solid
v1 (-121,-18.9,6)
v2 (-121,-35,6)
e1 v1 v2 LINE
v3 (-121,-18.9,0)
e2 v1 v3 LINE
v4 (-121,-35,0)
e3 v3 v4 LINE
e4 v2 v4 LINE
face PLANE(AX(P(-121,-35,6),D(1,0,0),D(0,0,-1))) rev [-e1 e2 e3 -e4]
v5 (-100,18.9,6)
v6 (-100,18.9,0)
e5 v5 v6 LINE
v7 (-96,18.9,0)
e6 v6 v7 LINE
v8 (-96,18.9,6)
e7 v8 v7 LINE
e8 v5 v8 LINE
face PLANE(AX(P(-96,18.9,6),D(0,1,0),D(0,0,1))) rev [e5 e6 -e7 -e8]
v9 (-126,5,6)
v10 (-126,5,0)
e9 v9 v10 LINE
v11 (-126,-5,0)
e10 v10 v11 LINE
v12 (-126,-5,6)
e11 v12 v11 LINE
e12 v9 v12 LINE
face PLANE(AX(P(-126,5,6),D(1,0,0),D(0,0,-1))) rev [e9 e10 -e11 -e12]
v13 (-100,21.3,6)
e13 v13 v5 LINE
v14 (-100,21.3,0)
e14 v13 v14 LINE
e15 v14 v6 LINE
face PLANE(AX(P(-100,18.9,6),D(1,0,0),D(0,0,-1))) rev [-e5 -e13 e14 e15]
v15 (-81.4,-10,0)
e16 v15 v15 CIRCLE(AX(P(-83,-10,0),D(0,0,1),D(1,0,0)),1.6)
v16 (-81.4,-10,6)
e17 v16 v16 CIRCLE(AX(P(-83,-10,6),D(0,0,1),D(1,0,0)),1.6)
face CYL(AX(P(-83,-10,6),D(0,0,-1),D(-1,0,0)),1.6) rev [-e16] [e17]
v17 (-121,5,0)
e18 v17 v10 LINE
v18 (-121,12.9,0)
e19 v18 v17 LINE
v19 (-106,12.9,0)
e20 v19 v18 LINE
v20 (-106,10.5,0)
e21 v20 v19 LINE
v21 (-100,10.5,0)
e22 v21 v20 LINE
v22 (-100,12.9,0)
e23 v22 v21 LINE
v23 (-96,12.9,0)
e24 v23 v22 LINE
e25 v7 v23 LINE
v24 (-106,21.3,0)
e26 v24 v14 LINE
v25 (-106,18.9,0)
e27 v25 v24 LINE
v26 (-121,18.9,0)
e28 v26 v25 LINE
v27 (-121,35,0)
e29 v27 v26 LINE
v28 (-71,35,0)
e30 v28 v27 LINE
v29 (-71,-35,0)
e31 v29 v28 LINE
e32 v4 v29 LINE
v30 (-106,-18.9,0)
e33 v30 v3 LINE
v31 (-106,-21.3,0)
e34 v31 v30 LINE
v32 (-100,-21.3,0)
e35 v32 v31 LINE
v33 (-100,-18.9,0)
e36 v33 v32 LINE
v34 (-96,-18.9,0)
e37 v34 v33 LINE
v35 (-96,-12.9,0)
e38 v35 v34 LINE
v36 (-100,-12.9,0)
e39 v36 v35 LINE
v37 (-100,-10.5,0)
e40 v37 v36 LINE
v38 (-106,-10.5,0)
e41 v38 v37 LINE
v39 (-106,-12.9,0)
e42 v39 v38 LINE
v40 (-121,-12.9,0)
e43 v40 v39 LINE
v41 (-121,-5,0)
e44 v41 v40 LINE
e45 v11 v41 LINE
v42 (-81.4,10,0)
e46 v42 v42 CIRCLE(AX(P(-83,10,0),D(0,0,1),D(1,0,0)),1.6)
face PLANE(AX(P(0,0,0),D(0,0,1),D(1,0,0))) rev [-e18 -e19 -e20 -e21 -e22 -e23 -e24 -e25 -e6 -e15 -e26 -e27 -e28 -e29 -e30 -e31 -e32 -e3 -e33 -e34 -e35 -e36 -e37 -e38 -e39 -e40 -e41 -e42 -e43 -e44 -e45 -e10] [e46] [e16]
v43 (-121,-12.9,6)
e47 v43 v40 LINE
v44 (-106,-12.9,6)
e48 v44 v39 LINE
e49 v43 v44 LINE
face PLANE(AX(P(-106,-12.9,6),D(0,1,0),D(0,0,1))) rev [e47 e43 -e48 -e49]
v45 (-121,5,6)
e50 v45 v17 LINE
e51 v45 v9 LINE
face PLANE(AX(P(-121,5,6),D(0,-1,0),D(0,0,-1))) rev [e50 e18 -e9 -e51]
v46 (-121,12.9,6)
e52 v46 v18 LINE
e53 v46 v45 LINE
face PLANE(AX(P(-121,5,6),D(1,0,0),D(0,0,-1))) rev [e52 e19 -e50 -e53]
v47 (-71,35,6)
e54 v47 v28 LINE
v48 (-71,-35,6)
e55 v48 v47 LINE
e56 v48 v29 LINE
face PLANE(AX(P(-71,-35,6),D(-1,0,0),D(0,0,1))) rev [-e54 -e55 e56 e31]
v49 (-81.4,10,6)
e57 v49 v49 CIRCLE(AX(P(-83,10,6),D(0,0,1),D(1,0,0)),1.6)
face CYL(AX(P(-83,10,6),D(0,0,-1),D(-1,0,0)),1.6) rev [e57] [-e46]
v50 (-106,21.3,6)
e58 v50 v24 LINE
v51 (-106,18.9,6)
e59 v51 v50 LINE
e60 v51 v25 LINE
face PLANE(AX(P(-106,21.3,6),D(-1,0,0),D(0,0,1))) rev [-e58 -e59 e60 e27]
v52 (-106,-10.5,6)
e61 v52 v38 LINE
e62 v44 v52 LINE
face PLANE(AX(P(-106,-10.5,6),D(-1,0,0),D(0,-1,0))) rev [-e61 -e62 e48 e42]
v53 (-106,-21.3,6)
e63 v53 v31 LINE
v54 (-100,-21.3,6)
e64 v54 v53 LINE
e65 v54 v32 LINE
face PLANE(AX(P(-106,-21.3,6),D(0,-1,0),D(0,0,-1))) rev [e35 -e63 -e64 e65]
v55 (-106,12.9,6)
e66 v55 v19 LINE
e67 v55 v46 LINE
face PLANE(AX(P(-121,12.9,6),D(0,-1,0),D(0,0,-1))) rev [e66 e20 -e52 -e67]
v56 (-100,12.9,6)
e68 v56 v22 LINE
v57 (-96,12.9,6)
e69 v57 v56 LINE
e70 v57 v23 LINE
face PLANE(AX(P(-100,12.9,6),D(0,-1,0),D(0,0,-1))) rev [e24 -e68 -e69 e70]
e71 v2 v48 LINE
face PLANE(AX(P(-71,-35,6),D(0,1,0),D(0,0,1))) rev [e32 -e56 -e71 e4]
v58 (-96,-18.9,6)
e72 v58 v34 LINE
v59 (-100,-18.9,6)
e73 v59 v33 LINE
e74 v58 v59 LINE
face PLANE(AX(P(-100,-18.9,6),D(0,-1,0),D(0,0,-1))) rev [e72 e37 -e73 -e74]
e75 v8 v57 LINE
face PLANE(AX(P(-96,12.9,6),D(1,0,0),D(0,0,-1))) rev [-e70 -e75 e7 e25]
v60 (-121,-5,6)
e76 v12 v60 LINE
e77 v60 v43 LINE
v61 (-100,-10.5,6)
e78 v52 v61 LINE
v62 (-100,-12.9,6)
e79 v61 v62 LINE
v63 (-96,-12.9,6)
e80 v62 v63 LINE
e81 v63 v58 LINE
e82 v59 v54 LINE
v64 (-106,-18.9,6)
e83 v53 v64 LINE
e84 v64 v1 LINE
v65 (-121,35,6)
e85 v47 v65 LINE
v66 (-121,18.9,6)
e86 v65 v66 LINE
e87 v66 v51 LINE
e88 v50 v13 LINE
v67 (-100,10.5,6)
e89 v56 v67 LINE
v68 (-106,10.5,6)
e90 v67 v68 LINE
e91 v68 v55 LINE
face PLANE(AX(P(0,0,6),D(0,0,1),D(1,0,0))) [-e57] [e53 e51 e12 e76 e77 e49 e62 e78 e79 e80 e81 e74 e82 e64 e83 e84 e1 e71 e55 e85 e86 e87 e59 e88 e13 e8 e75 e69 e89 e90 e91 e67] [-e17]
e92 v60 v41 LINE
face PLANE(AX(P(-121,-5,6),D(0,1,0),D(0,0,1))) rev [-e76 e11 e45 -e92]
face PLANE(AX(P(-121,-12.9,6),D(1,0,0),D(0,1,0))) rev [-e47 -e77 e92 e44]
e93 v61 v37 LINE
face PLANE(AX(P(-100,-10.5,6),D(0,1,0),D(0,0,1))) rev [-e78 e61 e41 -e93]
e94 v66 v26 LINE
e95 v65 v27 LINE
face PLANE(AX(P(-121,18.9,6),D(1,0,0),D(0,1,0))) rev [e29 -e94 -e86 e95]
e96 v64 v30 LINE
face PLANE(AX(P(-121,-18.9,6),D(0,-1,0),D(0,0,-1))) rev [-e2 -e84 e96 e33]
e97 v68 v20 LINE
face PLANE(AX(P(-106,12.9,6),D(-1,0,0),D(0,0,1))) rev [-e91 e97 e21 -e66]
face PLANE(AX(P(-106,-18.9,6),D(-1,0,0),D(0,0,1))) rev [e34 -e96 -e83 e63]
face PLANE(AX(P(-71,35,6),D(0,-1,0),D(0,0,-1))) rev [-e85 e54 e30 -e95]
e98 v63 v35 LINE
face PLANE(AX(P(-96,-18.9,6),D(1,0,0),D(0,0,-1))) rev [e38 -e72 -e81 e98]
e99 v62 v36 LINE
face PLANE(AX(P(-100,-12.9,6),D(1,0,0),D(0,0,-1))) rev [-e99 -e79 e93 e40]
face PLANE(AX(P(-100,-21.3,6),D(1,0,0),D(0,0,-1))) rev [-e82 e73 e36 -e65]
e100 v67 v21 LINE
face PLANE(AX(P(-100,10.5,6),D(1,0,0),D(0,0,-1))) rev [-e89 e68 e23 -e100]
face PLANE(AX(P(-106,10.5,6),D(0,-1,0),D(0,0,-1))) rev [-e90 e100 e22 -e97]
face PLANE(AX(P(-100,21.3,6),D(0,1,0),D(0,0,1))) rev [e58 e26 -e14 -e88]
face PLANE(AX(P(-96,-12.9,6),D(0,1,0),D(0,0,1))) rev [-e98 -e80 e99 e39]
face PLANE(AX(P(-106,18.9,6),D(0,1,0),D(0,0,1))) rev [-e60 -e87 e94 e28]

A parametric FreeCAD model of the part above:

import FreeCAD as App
import Part
import Sketcher

V = App.Vector


def add_polygon(sketch, points):
    """Adds a closed chain of lines whose ends are joined by coincident constraints."""
    first, n = sketch.GeometryCount, len(points)
    for a, b in zip(points, points[1:] + points[:1]):
        sketch.addGeometry(Part.LineSegment(App.Vector(*a, 0), App.Vector(*b, 0)), False)
    for i in range(n):
        sketch.addConstraint(Sketcher.Constraint("Coincident", first + i, 2, first + (i + 1) % n, 1))

doc = App.newDocument("Part")
body = doc.addObject("PartDesign::Body", "Body")

# Sketch on XY plane
sketch1 = doc.addObject("Sketcher::SketchObject", "Sketch")
body.addObject(sketch1)
sketch1.AttachmentSupport = (doc.XY_Plane, [""])
sketch1.MapMode = "FlatFace"
add_polygon(sketch1, [(-121, -35), (-71, -35), (-71, 35), (-121, 35), (-121, 18.9), (-106, 18.9), (-106, 21.3), (-100, 21.3), (-100, 18.9), (-96, 18.9), (-96, 12.9), (-100, 12.9), (-100, 10.5), (-106, 10.5), (-106, 12.9), (-121, 12.9), (-121, 5), (-126, 5), (-126, -5), (-121, -5), (-121, -12.9), (-106, -12.9), (-106, -10.5), (-100, -10.5), (-100, -12.9), (-96, -12.9), (-96, -18.9), (-100, -18.9), (-100, -21.3), (-106, -21.3), (-106, -18.9), (-121, -18.9)])  # lines 0-31
sketch1.addGeometry(Part.Circle(V(-83, -10, 0), V(0, 0, 1), 1.6), False)  # 32
sketch1.addGeometry(Part.Circle(V(-83, 10, 0), V(0, 0, 1), 1.6), False)  # 33
sketch1.addConstraint(Sketcher.Constraint("Horizontal", 0))
sketch1.addConstraint(Sketcher.Constraint("Vertical", 1))
sketch1.addConstraint(Sketcher.Constraint("Horizontal", 2))
sketch1.addConstraint(Sketcher.Constraint("Vertical", 3))
sketch1.addConstraint(Sketcher.Constraint("Horizontal", 4))
sketch1.addConstraint(Sketcher.Constraint("Vertical", 5))
sketch1.addConstraint(Sketcher.Constraint("Horizontal", 6))
sketch1.addConstraint(Sketcher.Constraint("Vertical", 7))
sketch1.addConstraint(Sketcher.Constraint("Horizontal", 8))
sketch1.addConstraint(Sketcher.Constraint("Vertical", 9))
sketch1.addConstraint(Sketcher.Constraint("Horizontal", 10))
sketch1.addConstraint(Sketcher.Constraint("Vertical", 11))
sketch1.addConstraint(Sketcher.Constraint("Horizontal", 12))
sketch1.addConstraint(Sketcher.Constraint("Vertical", 13))
sketch1.addConstraint(Sketcher.Constraint("Horizontal", 14))
sketch1.addConstraint(Sketcher.Constraint("Vertical", 15))
sketch1.addConstraint(Sketcher.Constraint("Horizontal", 16))
sketch1.addConstraint(Sketcher.Constraint("Vertical", 17))
sketch1.addConstraint(Sketcher.Constraint("Horizontal", 18))
sketch1.addConstraint(Sketcher.Constraint("Vertical", 19))
sketch1.addConstraint(Sketcher.Constraint("Horizontal", 20))
sketch1.addConstraint(Sketcher.Constraint("Vertical", 21))
sketch1.addConstraint(Sketcher.Constraint("Horizontal", 22))
sketch1.addConstraint(Sketcher.Constraint("Vertical", 23))
sketch1.addConstraint(Sketcher.Constraint("Horizontal", 24))
sketch1.addConstraint(Sketcher.Constraint("Vertical", 25))
sketch1.addConstraint(Sketcher.Constraint("Horizontal", 26))
sketch1.addConstraint(Sketcher.Constraint("Vertical", 27))
sketch1.addConstraint(Sketcher.Constraint("Horizontal", 28))
sketch1.addConstraint(Sketcher.Constraint("Vertical", 29))
sketch1.addConstraint(Sketcher.Constraint("Horizontal", 30))
sketch1.addConstraint(Sketcher.Constraint("Vertical", 31))
sketch1.addConstraint(Sketcher.Constraint("Equal", 32, 33))
sketch1.addConstraint(Sketcher.Constraint("Symmetric", 32, 3, 33, 3, -1))
sketch1.addConstraint(Sketcher.Constraint("Symmetric", 15, 2, 18, 2, -1))
sketch1.addConstraint(Sketcher.Constraint("Symmetric", 13, 2, 20, 2, -1))
sketch1.addConstraint(Sketcher.Constraint("Symmetric", 11, 2, 22, 2, -1))
sketch1.addConstraint(Sketcher.Constraint("Symmetric", 9, 2, 24, 2, -1))
sketch1.addConstraint(Sketcher.Constraint("Symmetric", 7, 2, 26, 2, -1))
sketch1.addConstraint(Sketcher.Constraint("Symmetric", 5, 2, 28, 2, -1))
sketch1.addConstraint(Sketcher.Constraint("Symmetric", 3, 2, 30, 2, -1))
sketch1.addConstraint(Sketcher.Constraint("Horizontal", 4, 2, 7, 2))
sketch1.addConstraint(Sketcher.Constraint("Horizontal", 10, 2, 13, 2))
sketch1.addConstraint(Sketcher.Constraint("Vertical", 7, 2, 10, 2))
sketch1.addConstraint(Sketcher.Constraint("Vertical", 5, 2, 12, 2))
sketch1.addConstraint(Sketcher.Constraint("Vertical", 3, 2, 14, 2))
sketch1.addConstraint(Sketcher.Constraint("Equal", 28, 9))
sketch1.addConstraint(Sketcher.Constraint("Equal", 7, 11))
sketch1.addConstraint(Sketcher.Constraint("Equal", 3, 31))
sketch1.addConstraint(Sketcher.Constraint("Diameter", 32, 3.2))
sketch1.addConstraint(Sketcher.Constraint("DistanceX", 0, 1, 0, 2, 50.0))
sketch1.addConstraint(Sketcher.Constraint("DistanceX", 4, 1, 4, 2, 15.0))
sketch1.addConstraint(Sketcher.Constraint("DistanceX", 6, 1, 6, 2, 6.0))
sketch1.addConstraint(Sketcher.Constraint("DistanceX", 8, 1, 8, 2, 4.0))
sketch1.addConstraint(Sketcher.Constraint("DistanceX", 16, 2, 16, 1, 5.0))
sketch1.addConstraint(Sketcher.Constraint("DistanceY", 1, 1, 1, 2, 70.0))
sketch1.addConstraint(Sketcher.Constraint("DistanceY", 17, 2, 17, 1, 10.0))
sketch1.addConstraint(Sketcher.Constraint("DistanceY", 3, 2, 3, 1, 16.1))
sketch1.addConstraint(Sketcher.Constraint("DistanceY", 5, 1, 5, 2, 2.4))
sketch1.addConstraint(Sketcher.Constraint("DistanceX", 32, 3, -1, 1, 83.0))
sketch1.addConstraint(Sketcher.Constraint("DistanceY", 32, 3, -1, 1, 10.0))
sketch1.addConstraint(Sketcher.Constraint("DistanceX", 0, 2, -1, 1, 71.0))
pad1 = doc.addObject("PartDesign::Pad", "Pad")
body.addObject(pad1)
pad1.Profile = sketch1
pad1.Length = 6

doc.recompute()
